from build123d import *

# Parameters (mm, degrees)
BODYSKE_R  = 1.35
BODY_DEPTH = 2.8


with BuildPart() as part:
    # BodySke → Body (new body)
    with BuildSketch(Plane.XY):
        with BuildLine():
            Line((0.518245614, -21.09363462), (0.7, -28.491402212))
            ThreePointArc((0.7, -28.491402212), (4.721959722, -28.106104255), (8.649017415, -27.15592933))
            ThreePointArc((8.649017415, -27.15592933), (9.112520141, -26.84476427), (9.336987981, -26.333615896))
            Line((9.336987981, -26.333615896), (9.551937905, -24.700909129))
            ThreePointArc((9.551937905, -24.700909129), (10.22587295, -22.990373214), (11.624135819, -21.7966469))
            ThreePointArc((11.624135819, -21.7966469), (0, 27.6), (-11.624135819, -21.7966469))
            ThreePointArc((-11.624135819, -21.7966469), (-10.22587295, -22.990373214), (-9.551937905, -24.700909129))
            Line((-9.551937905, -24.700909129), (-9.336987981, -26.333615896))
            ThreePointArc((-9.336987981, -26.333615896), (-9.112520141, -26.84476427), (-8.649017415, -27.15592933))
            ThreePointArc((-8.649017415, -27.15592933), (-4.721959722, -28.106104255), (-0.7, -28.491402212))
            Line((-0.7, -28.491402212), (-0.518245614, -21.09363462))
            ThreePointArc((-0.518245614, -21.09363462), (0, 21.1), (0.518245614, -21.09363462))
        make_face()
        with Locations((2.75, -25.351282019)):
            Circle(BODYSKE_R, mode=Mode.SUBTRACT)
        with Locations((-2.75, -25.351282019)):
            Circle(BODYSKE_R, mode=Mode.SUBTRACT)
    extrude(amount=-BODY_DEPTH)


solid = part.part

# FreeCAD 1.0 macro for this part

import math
import FreeCAD as App
import Part
import Sketcher
from FreeCAD import Vector

doc = App.newDocument("Part")
body = doc.addObject("PartDesign::Body", "Body")

# Sketch on XY plane
sketch1 = body.newObject("Sketcher::SketchObject", "Sketch")
sketch1.AttachmentSupport = (doc.getObject("XY_Plane"), [""])
sketch1.MapMode = "FlatFace"
sketch1.addGeometry(Part.LineSegment(Vector(0.518246, -21.093635, 0), Vector(0.7, -28.491402, 0)), False)
sketch1.addGeometry(Part.ArcOfCircle(Part.Circle(Vector(0, 0, 0), Vector(0, 0, 1), 28.5), math.radians(-88.592594), math.radians(-72.333603)), False)
sketch1.addGeometry(Part.ArcOfCircle(Part.Circle(Vector(8.345543, -26.20309, 0), Vector(0, 0, 1), 1), math.radians(-72.333603), math.radians(-7.5)), False)
sketch1.addGeometry(Part.LineSegment(Vector(9.336988, -26.333616, 0), Vector(9.551938, -24.700909, 0)), False)
sketch1.addGeometry(Part.ArcOfCircle(Part.Circle(Vector(13.318185, -25.196745, 0), Vector(0, 0, 1), 3.798746), math.radians(116.484107), math.radians(172.5)), False)
sketch1.addGeometry(Part.ArcOfCircle(Part.Circle(Vector(0, 1.533967, 0), Vector(0, 0, 1), 26.066033), math.radians(-63.515893), math.radians(243.515893)), False)
sketch1.addGeometry(Part.ArcOfCircle(Part.Circle(Vector(-13.318185, -25.196745, 0), Vector(0, 0, 1), 3.798746), math.radians(7.5), math.radians(63.515893)), False)
sketch1.addGeometry(Part.LineSegment(Vector(-9.551938, -24.700909, 0), Vector(-9.336988, -26.333616, 0)), False)
sketch1.addGeometry(Part.ArcOfCircle(Part.Circle(Vector(-8.345543, -26.20309, 0), Vector(0, 0, 1), 1), math.radians(-172.5), math.radians(-107.666397)), False)
sketch1.addGeometry(Part.ArcOfCircle(Part.Circle(Vector(0, 0, 0), Vector(0, 0, 1), 28.5), math.radians(-107.666397), math.radians(-91.407406)), False)
sketch1.addGeometry(Part.LineSegment(Vector(-0.7, -28.491402, 0), Vector(-0.518246, -21.093635, 0)), False)
sketch1.addGeometry(Part.ArcOfCircle(Part.Circle(Vector(0, 0, 0), Vector(0, 0, 1), 21.1), math.radians(-88.592594), math.radians(268.592594)), False)
sketch1.addGeometry(Part.Circle(Vector(-2.75, -25.351282, 0), Vector(0, 0, 1), 1.35), False)
sketch1.addGeometry(Part.Circle(Vector(2.75, -25.351282, 0), Vector(0, 0, 1), 1.35), False)
sketch1.addConstraint(Sketcher.Constraint("Coincident", 0, 2, 1, 1))
sketch1.addConstraint(Sketcher.Constraint("Coincident", 1, 2, 2, 1))
sketch1.addConstraint(Sketcher.Constraint("Coincident", 2, 2, 3, 1))
sketch1.addConstraint(Sketcher.Constraint("Coincident", 3, 2, 4, 2))
sketch1.addConstraint(Sketcher.Constraint("Coincident", 4, 1, 5, 1))
sketch1.addConstraint(Sketcher.Constraint("Coincident", 5, 2, 6, 2))
sketch1.addConstraint(Sketcher.Constraint("Coincident", 6, 1, 7, 1))
sketch1.addConstraint(Sketcher.Constraint("Coincident", 7, 2, 8, 1))
sketch1.addConstraint(Sketcher.Constraint("Coincident", 8, 2, 9, 1))
sketch1.addConstraint(Sketcher.Constraint("Coincident", 9, 2, 10, 1))
sketch1.addConstraint(Sketcher.Constraint("Coincident", 10, 2, 11, 2))
sketch1.addConstraint(Sketcher.Constraint("Coincident", 11, 1, 0, 1))
sketch1.addConstraint(Sketcher.Constraint("Coincident", 1, 3, -1, 1))
sketch1.addConstraint(Sketcher.Constraint("Coincident", 9, 3, -1, 1))
sketch1.addConstraint(Sketcher.Constraint("Coincident", 11, 3, -1, 1))
sketch1.addConstraint(Sketcher.Constraint("PointOnObject", 5, 3, -2))
sketch1.addConstraint(Sketcher.Constraint("Radius", 2, 1.0))
sketch1.addConstraint(Sketcher.Constraint("Radius", 8, 1.0))
sketch1.addConstraint(Sketcher.Constraint("Diameter", 12, 2.7))
sketch1.addConstraint(Sketcher.Constraint("Diameter", 13, 2.7))
sketch1.addConstraint(Sketcher.Constraint("Radius", 1, 28.5))
sketch1.addConstraint(Sketcher.Constraint("Radius", 9, 28.5))
sketch1.addConstraint(Sketcher.Constraint("Radius", 11, 21.1))
sketch1.addConstraint(Sketcher.Constraint("DistanceX", -1, 1, 0, 2, 0.7))
sketch1.addConstraint(Sketcher.Constraint("DistanceX", 9, 2, -1, 1, 0.7))
sketch1.addConstraint(Sketcher.Constraint("DistanceX", 12, 3, 13, 3, 5.5))
sketch1.addConstraint(Sketcher.Constraint("DistanceX", 12, 3, -1, 1, 2.75))
sketch1.addConstraint(Sketcher.Constraint("Radius", 4, 3.798746))
sketch1.addConstraint(Sketcher.Constraint("Radius", 5, 26.066033))
sketch1.addConstraint(Sketcher.Constraint("Radius", 6, 3.798746))
sketch1.addConstraint(Sketcher.Constraint("DistanceY", 4, 3, 4, 1, 3.400098))
sketch1.addConstraint(Sketcher.Constraint("DistanceY", 6, 3, 5, 2, 3.400098))
sketch1.addConstraint(Sketcher.Constraint("DistanceY", 2, 3, -1, 1, 26.20309))
sketch1.addConstraint(Sketcher.Constraint("DistanceY", 8, 3, -1, 1, 26.20309))
sketch1.addConstraint(Sketcher.Constraint("DistanceY", 1, 2, -1, 1, 27.155929))
sketch1.addConstraint(Sketcher.Constraint("DistanceY", 3, 2, -1, 1, 24.700909))
sketch1.addConstraint(Sketcher.Constraint("DistanceY", 6, 1, -1, 1, 24.700909))
sketch1.addConstraint(Sketcher.Constraint("DistanceY", 8, 2, -1, 1, 27.155929))
sketch1.addConstraint(Sketcher.Constraint("DistanceX", 2, 3, 4, 3, 4.972642))
sketch1.addConstraint(Sketcher.Constraint("DistanceX", 6, 3, 4, 3, 26.636369))
sketch1.addConstraint(Sketcher.Constraint("DistanceY", 0, 2, 13, 3, 3.14012))
sketch1.addConstraint(Sketcher.Constraint("DistanceY", 0, 2, 12, 3, 3.14012))
sketch1.addConstraint(Sketcher.Constraint("DistanceX", 1, 2, 2, 2, 0.687971))
sketch1.addConstraint(Sketcher.Constraint("DistanceY", 2, 2, 4, 3, 1.136871))
sketch1.addConstraint(Sketcher.Constraint("DistanceX", 6, 1, 7, 2, 0.21495))
sketch1.addConstraint(Sketcher.Constraint("DistanceX", 10, 2, 11, 1, 1.036491))
sketch1.addConstraint(Sketcher.Constraint("DistanceX", 10, 2, -1, 1, 0.518246))
pad1 = body.newObject("PartDesign::Pad", "Pad")
pad1.Profile = sketch1
pad1.Length = 2.8
pad1.Reversed = True

doc.recompute()
